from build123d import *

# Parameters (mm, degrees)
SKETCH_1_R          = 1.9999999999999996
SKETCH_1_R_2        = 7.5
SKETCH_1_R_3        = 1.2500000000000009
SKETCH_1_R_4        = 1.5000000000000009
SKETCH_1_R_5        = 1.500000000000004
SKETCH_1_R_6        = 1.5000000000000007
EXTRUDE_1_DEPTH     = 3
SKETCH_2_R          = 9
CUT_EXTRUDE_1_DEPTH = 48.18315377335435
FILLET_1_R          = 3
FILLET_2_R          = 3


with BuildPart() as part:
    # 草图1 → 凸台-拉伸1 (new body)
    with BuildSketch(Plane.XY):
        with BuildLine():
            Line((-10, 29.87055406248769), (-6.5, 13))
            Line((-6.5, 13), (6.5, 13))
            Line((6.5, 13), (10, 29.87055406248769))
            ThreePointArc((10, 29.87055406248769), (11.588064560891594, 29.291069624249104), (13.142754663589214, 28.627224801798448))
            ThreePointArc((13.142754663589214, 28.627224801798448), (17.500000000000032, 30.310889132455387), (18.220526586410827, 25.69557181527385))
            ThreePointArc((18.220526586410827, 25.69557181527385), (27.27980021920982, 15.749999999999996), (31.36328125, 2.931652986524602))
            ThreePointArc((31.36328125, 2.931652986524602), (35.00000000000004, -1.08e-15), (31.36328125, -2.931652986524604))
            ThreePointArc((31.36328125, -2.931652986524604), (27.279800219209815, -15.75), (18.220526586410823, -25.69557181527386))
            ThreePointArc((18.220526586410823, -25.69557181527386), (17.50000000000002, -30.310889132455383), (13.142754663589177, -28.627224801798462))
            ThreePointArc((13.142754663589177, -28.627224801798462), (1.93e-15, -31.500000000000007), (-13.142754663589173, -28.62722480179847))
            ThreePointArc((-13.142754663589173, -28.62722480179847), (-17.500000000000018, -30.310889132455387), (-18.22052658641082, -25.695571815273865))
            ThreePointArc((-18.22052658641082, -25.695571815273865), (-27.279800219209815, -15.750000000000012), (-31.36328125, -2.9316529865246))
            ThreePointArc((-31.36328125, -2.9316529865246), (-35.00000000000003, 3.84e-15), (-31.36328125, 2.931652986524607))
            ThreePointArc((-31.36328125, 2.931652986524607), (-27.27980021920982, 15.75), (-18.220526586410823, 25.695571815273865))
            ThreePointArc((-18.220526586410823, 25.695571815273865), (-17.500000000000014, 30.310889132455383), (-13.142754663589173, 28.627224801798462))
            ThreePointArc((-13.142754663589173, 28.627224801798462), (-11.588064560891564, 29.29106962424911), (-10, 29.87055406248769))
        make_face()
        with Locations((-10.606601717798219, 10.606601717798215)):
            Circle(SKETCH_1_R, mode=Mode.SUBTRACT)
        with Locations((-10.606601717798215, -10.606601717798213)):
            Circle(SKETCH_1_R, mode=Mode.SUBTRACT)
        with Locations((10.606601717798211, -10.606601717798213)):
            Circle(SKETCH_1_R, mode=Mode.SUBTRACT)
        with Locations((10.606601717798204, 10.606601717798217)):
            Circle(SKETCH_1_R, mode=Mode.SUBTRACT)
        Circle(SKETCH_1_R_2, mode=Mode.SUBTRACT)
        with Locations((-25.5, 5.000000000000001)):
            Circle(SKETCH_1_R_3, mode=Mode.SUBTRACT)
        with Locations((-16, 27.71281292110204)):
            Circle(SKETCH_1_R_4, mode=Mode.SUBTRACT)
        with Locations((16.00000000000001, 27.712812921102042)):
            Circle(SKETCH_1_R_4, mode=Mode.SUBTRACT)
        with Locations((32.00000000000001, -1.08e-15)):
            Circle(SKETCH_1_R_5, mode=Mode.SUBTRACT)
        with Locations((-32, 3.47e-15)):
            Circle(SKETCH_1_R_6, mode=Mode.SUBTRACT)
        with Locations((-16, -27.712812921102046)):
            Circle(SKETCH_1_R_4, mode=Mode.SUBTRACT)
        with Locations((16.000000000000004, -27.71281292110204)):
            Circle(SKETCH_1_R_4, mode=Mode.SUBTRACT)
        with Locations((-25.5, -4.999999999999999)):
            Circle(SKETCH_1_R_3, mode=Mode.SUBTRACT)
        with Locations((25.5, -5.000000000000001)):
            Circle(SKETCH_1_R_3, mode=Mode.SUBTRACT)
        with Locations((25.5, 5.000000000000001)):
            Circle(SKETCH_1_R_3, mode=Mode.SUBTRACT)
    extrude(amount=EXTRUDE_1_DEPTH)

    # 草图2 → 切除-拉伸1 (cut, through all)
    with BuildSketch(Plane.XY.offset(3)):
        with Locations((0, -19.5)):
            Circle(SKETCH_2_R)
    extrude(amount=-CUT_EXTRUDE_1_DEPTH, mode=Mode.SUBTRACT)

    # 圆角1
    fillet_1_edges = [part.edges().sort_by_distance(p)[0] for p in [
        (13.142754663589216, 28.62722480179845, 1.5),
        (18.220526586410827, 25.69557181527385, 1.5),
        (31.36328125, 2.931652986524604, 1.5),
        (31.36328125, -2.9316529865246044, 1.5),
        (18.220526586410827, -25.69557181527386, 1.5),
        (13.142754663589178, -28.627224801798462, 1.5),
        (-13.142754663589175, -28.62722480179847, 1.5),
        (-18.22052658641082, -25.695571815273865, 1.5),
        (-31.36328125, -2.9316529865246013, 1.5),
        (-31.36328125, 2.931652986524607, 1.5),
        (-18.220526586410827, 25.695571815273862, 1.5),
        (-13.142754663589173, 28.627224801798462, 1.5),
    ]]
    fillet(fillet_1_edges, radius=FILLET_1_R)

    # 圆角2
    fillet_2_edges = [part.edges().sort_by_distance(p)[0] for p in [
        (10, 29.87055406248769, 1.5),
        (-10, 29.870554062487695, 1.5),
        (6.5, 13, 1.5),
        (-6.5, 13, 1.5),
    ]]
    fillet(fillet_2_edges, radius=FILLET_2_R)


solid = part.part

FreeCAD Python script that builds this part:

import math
import FreeCAD as App
import Part
import Sketcher

V = App.Vector


def edges_at(feature, points):
    """Names of the edges that pass closest to the given points."""
    edges = feature.Shape.Edges
    near = lambda p: min(range(len(edges)), key=lambda i: edges[i].distToShape(Part.Vertex(*p))[0])
    return sorted({f"Edge{near(p) + 1}" for p in points})

doc = App.newDocument("Part")
params = doc.addObject("Spreadsheet::Sheet", "Params")
for row, (alias, value) in enumerate([
    ("sketch1_diameter", "3 mm"),
    ("sketch1_diameter2", "4 mm"),
    ("sketch1_diameter3", "15 mm"),
    ("sketch1_radius", "3 mm"),
    ("sketch1_diameter4", "2.5 mm"),
    ("pad1_length", "3 mm"),
    ("sketch2_diameter", "18 mm"),
    ("fillet_radius", "3 mm"),
    ("fillet2_radius", "3 mm"),
], start=1):
    params.set(f"A{row}", alias)
    params.set(f"B{row}", "=" + value)
    params.setAlias(f"B{row}", alias)

body = doc.addObject("PartDesign::Body", "Body")

sketch1 = body.newObject("Sketcher::SketchObject", "Sketch")
sketch1.AttachmentSupport = (doc.getObject("XY_Plane"), [""])
sketch1.MapMode = "FlatFace"
sketch1.addGeometry([
    Part.LineSegment(V(-6.5, 13, 0), V(-10, 29.9, 0)),
    Part.ArcOfCircle(Part.Circle(V(0, 0, 0), V(0, 0, 1), 31.5), math.radians(108.51), math.radians(114.66)),
    Part.ArcOfCircle(Part.Circle(V(-16, 27.7, 0), V(0, 0, 1), 3), math.radians(18), math.radians(222)),
    Part.ArcOfCircle(Part.Circle(V(0, 0, 0), V(0, 0, 1), 31.5), math.radians(125), math.radians(175)),
    Part.ArcOfCircle(Part.Circle(V(-32, 0, 0), V(0, 0, 1), 3), math.radians(78), math.radians(282)),
    Part.ArcOfCircle(Part.Circle(V(0, 0, 0), V(0, 0, 1), 31.5), math.radians(-175), math.radians(-125)),
    Part.ArcOfCircle(Part.Circle(V(-16, -27.7, 0), V(0, 0, 1), 3), math.radians(138), math.radians(342)),
    Part.ArcOfCircle(Part.Circle(V(0, 0, 0), V(0, 0, 1), 31.5), math.radians(-115), math.radians(-65)),
    Part.ArcOfCircle(Part.Circle(V(16, -27.7, 0), V(0, 0, 1), 3), math.radians(-162), math.radians(42)),
    Part.ArcOfCircle(Part.Circle(V(0, 0, 0), V(0, 0, 1), 31.5), math.radians(-55), math.radians(-5)),
    Part.ArcOfCircle(Part.Circle(V(32, 0, 0), V(0, 0, 1), 3), math.radians(-102), math.radians(102)),
    Part.ArcOfCircle(Part.Circle(V(0, 0, 0), V(0, 0, 1), 31.5), math.radians(5), math.radians(55)),
    Part.ArcOfCircle(Part.Circle(V(16, 27.7, 0), V(0, 0, 1), 3), math.radians(-42), math.radians(162)),
    Part.ArcOfCircle(Part.Circle(V(0, 0, 0), V(0, 0, 1), 31.5), math.radians(65.34), math.radians(71.49)),
    Part.LineSegment(V(10, 29.9, 0), V(6.5, 13, 0)),
    Part.LineSegment(V(6.5, 13, 0), V(-6.5, 13, 0)),
    Part.Circle(V(16, -27.7, 0), V(0, 0, 1), 1.5),
    Part.Circle(V(25.5, -5, 0), V(0, 0, 1), 1.2),
    Part.Circle(V(10.6, -10.6, 0), V(0, 0, 1), 2),
    Part.Circle(V(-16, -27.7, 0), V(0, 0, 1), 1.5),
    Part.Circle(V(-10.6, -10.6, 0), V(0, 0, 1), 2),
    Part.Circle(V(-25.5, -5, 0), V(0, 0, 1), 1.2),
    Part.Circle(V(32, 0, 0), V(0, 0, 1), 1.5),
    Part.Circle(V(25.5, 5, 0), V(0, 0, 1), 1.2),
    Part.Circle(V(10.6, 10.6, 0), V(0, 0, 1), 2),
    Part.Circle(V(16, 27.7, 0), V(0, 0, 1), 1.5),
    Part.Circle(V(0, 0, 0), V(0, 0, 1), 7.5),
    Part.Circle(V(-10.6, 10.6, 0), V(0, 0, 1), 2),
    Part.Circle(V(-32, 0, 0), V(0, 0, 1), 1.5),
    Part.Circle(V(-25.5, 5, 0), V(0, 0, 1), 1.2),
    Part.Circle(V(-16, 27.7, 0), V(0, 0, 1), 1.5),
], False)
sketch1.addConstraint([
    Sketcher.Constraint("Coincident", 0, 2, 1, 1),
    Sketcher.Constraint("Coincident", 1, 2, 2, 1),
    Sketcher.Constraint("Coincident", 2, 2, 3, 1),
    Sketcher.Constraint("Coincident", 3, 2, 4, 1),
    Sketcher.Constraint("Coincident", 4, 2, 5, 1),
    Sketcher.Constraint("Coincident", 5, 2, 6, 1),
    Sketcher.Constraint("Coincident", 6, 2, 7, 1),
    Sketcher.Constraint("Coincident", 7, 2, 8, 1),
    Sketcher.Constraint("Coincident", 8, 2, 9, 1),
    Sketcher.Constraint("Coincident", 9, 2, 10, 1),
    Sketcher.Constraint("Coincident", 10, 2, 11, 1),
    Sketcher.Constraint("Coincident", 11, 2, 12, 1),
    Sketcher.Constraint("Coincident", 12, 2, 13, 1),
    Sketcher.Constraint("Coincident", 13, 2, 14, 1),
    Sketcher.Constraint("Coincident", 14, 2, 15, 1),
    Sketcher.Constraint("Coincident", 15, 2, 0, 1),
    Sketcher.Constraint("Horizontal", 15),
    Sketcher.Constraint("Coincident", 1, 3, -1, 1),
    Sketcher.Constraint("Coincident", 3, 3, -1, 1),
    Sketcher.Constraint("Coincident", 5, 3, -1, 1),
    Sketcher.Constraint("Coincident", 7, 3, -1, 1),
    Sketcher.Constraint("Coincident", 9, 3, -1, 1),
    Sketcher.Constraint("Coincident", 11, 3, -1, 1),
    Sketcher.Constraint("Coincident", 13, 3, -1, 1),
    Sketcher.Constraint("Coincident", 26, 3, -1, 1),
    Sketcher.Constraint("Coincident", 16, 3, 8, 3),
    Sketcher.Constraint("Coincident", 19, 3, 6, 3),
    Sketcher.Constraint("Coincident", 22, 3, 10, 3),
    Sketcher.Constraint("Coincident", 25, 3, 12, 3),
    Sketcher.Constraint("Coincident", 28, 3, 4, 3),
    Sketcher.Constraint("Coincident", 30, 3, 2, 3),
    Sketcher.Constraint("Equal", 1, 3),
    Sketcher.Constraint("Equal", 2, 4),
    Sketcher.Constraint("Equal", 3, 5),
    Sketcher.Constraint("Equal", 4, 6),
    Sketcher.Constraint("Equal", 5, 7),
    Sketcher.Constraint("Equal", 6, 8),
    Sketcher.Constraint("Equal", 7, 9),
    Sketcher.Constraint("Equal", 8, 10),
    Sketcher.Constraint("Equal", 9, 11),
    Sketcher.Constraint("Equal", 10, 12),
    Sketcher.Constraint("Equal", 11, 13),
    Sketcher.Constraint("Equal", 16, 19),
    Sketcher.Constraint("Equal", 18, 20),
    Sketcher.Constraint("Equal", 17, 21),
    Sketcher.Constraint("Equal", 19, 22),
    Sketcher.Constraint("Equal", 21, 23),
    Sketcher.Constraint("Equal", 20, 24),
    Sketcher.Constraint("Equal", 22, 25),
    Sketcher.Constraint("Equal", 24, 27),
    Sketcher.Constraint("Equal", 25, 28),
    Sketcher.Constraint("Equal", 23, 29),
    Sketcher.Constraint("Equal", 28, 30),
    Sketcher.Constraint("Symmetric", 2, 3, 8, 3, -1, 1),
    Sketcher.Constraint("Symmetric", 4, 3, 10, 3, -1, 1),
    Sketcher.Constraint("Symmetric", 6, 3, 12, 3, -1, 1),
    Sketcher.Constraint("Symmetric", 21, 3, 23, 3, -1, 1),
    Sketcher.Constraint("Symmetric", 20, 3, 24, 3, -1, 1),
    Sketcher.Constraint("Symmetric", 18, 3, 27, 3, -1, 1),
    Sketcher.Constraint("Symmetric", 17, 3, 29, 3, -1, 1),
    Sketcher.Constraint("Symmetric", 6, 3, 8, 3, -2),
    Sketcher.Constraint("Symmetric", 18, 3, 20, 3, -2),
    Sketcher.Constraint("Symmetric", 17, 3, 21, 3, -2),
    Sketcher.Constraint("PointOnObject", 4, 3, -1),
    Sketcher.Constraint("Horizontal", 0, 2, 13, 2),
    Sketcher.Constraint("Equal", 0, 14),
    Sketcher.Constraint("Diameter", 16, 3.0),
    Sketcher.Constraint("Diameter", 18, 4.0),
    Sketcher.Constraint("Diameter", 26, 15.0),
    Sketcher.Constraint("Radius", 2, 3.0),
    Sketcher.Constraint("Diameter", 17, 2.5),
    Sketcher.Constraint("Radius", 1, 31.5),
    Sketcher.Constraint("DistanceX", 15, 2, 15, 1, 13.0),
    Sketcher.Constraint("DistanceX", 2, 3, -1, 1, 16.0),
    Sketcher.Constraint("DistanceX", 4, 3, -1, 1, 32.0),
    Sketcher.Constraint("DistanceY", 17, 3, -1, 1, 5.0),
    Sketcher.Constraint("DistanceX", 0, 2, -1, 1, 10.0),
    Sketcher.Constraint("DistanceY", -1, 1, 14, 2, 13.0),
    Sketcher.Constraint("DistanceX", -1, 1, 17, 3, 25.5),
    Sketcher.Constraint("DistanceX", -1, 1, 18, 3, 10.606602),
    Sketcher.Constraint("DistanceY", 18, 3, -1, 1, 10.606602),
    Sketcher.Constraint("DistanceY", -1, 1, 2, 2, 25.695572),
])
sketch1.setExpression("Constraints[66]", "Params.sketch1_diameter")
sketch1.setExpression("Constraints[67]", "Params.sketch1_diameter2")
sketch1.setExpression("Constraints[68]", "Params.sketch1_diameter3")
sketch1.setExpression("Constraints[69]", "Params.sketch1_radius")
sketch1.setExpression("Constraints[70]", "Params.sketch1_diameter4")
pad1 = body.newObject("PartDesign::Pad", "Pad")
pad1.Profile = sketch1
pad1.setExpression("Length", "Params.pad1_length")

sketch2 = body.newObject("Sketcher::SketchObject", "Sketch001")
sketch2.AttachmentSupport = (doc.getObject("XY_Plane"), [""])
sketch2.MapMode = "FlatFace"
sketch2.AttachmentOffset = App.Placement(V(0, 0, 3), App.Rotation())
sketch2.addGeometry(Part.Circle(V(0, -20, 0), V(0, 0, 1), 9), False)
sketch2.addConstraint([
    Sketcher.Constraint("PointOnObject", 0, 3, -2),
    Sketcher.Constraint("Diameter", 0, 18.0),
    Sketcher.Constraint("DistanceY", 0, 3, -1, 1, 19.5),
])
sketch2.setExpression("Constraints[1]", "Params.sketch2_diameter")
pocket1 = body.newObject("PartDesign::Pocket", "Pocket")
pocket1.Profile = sketch2
pocket1.Type = "ThroughAll"
doc.recompute()

fillet = body.newObject("PartDesign::Fillet", "Fillet")
fillet.Base = (pocket1, edges_at(pocket1, [
    (13.143, 28.627, 1.5),
    (18.221, 25.696, 1.5),
    (31.363, 2.932, 1.5),
    (31.363, -2.932, 1.5),
    (18.221, -25.696, 1.5),
    (13.143, -28.627, 1.5),
    (-13.143, -28.627, 1.5),
    (-18.221, -25.696, 1.5),
    (-31.363, -2.932, 1.5),
    (-31.363, 2.932, 1.5),
    (-18.221, 25.696, 1.5),
    (-13.143, 28.627, 1.5),
]))
fillet.setExpression("Radius", "Params.fillet_radius")
doc.recompute()

fillet2 = body.newObject("PartDesign::Fillet", "Fillet001")
fillet2.Base = (fillet, edges_at(fillet, [
    (10, 29.871, 1.5),
    (-10, 29.871, 1.5),
    (6.5, 13, 1.5),
    (-6.5, 13, 1.5),
]))
fillet2.setExpression("Radius", "Params.fillet2_radius")

doc.recompute()
